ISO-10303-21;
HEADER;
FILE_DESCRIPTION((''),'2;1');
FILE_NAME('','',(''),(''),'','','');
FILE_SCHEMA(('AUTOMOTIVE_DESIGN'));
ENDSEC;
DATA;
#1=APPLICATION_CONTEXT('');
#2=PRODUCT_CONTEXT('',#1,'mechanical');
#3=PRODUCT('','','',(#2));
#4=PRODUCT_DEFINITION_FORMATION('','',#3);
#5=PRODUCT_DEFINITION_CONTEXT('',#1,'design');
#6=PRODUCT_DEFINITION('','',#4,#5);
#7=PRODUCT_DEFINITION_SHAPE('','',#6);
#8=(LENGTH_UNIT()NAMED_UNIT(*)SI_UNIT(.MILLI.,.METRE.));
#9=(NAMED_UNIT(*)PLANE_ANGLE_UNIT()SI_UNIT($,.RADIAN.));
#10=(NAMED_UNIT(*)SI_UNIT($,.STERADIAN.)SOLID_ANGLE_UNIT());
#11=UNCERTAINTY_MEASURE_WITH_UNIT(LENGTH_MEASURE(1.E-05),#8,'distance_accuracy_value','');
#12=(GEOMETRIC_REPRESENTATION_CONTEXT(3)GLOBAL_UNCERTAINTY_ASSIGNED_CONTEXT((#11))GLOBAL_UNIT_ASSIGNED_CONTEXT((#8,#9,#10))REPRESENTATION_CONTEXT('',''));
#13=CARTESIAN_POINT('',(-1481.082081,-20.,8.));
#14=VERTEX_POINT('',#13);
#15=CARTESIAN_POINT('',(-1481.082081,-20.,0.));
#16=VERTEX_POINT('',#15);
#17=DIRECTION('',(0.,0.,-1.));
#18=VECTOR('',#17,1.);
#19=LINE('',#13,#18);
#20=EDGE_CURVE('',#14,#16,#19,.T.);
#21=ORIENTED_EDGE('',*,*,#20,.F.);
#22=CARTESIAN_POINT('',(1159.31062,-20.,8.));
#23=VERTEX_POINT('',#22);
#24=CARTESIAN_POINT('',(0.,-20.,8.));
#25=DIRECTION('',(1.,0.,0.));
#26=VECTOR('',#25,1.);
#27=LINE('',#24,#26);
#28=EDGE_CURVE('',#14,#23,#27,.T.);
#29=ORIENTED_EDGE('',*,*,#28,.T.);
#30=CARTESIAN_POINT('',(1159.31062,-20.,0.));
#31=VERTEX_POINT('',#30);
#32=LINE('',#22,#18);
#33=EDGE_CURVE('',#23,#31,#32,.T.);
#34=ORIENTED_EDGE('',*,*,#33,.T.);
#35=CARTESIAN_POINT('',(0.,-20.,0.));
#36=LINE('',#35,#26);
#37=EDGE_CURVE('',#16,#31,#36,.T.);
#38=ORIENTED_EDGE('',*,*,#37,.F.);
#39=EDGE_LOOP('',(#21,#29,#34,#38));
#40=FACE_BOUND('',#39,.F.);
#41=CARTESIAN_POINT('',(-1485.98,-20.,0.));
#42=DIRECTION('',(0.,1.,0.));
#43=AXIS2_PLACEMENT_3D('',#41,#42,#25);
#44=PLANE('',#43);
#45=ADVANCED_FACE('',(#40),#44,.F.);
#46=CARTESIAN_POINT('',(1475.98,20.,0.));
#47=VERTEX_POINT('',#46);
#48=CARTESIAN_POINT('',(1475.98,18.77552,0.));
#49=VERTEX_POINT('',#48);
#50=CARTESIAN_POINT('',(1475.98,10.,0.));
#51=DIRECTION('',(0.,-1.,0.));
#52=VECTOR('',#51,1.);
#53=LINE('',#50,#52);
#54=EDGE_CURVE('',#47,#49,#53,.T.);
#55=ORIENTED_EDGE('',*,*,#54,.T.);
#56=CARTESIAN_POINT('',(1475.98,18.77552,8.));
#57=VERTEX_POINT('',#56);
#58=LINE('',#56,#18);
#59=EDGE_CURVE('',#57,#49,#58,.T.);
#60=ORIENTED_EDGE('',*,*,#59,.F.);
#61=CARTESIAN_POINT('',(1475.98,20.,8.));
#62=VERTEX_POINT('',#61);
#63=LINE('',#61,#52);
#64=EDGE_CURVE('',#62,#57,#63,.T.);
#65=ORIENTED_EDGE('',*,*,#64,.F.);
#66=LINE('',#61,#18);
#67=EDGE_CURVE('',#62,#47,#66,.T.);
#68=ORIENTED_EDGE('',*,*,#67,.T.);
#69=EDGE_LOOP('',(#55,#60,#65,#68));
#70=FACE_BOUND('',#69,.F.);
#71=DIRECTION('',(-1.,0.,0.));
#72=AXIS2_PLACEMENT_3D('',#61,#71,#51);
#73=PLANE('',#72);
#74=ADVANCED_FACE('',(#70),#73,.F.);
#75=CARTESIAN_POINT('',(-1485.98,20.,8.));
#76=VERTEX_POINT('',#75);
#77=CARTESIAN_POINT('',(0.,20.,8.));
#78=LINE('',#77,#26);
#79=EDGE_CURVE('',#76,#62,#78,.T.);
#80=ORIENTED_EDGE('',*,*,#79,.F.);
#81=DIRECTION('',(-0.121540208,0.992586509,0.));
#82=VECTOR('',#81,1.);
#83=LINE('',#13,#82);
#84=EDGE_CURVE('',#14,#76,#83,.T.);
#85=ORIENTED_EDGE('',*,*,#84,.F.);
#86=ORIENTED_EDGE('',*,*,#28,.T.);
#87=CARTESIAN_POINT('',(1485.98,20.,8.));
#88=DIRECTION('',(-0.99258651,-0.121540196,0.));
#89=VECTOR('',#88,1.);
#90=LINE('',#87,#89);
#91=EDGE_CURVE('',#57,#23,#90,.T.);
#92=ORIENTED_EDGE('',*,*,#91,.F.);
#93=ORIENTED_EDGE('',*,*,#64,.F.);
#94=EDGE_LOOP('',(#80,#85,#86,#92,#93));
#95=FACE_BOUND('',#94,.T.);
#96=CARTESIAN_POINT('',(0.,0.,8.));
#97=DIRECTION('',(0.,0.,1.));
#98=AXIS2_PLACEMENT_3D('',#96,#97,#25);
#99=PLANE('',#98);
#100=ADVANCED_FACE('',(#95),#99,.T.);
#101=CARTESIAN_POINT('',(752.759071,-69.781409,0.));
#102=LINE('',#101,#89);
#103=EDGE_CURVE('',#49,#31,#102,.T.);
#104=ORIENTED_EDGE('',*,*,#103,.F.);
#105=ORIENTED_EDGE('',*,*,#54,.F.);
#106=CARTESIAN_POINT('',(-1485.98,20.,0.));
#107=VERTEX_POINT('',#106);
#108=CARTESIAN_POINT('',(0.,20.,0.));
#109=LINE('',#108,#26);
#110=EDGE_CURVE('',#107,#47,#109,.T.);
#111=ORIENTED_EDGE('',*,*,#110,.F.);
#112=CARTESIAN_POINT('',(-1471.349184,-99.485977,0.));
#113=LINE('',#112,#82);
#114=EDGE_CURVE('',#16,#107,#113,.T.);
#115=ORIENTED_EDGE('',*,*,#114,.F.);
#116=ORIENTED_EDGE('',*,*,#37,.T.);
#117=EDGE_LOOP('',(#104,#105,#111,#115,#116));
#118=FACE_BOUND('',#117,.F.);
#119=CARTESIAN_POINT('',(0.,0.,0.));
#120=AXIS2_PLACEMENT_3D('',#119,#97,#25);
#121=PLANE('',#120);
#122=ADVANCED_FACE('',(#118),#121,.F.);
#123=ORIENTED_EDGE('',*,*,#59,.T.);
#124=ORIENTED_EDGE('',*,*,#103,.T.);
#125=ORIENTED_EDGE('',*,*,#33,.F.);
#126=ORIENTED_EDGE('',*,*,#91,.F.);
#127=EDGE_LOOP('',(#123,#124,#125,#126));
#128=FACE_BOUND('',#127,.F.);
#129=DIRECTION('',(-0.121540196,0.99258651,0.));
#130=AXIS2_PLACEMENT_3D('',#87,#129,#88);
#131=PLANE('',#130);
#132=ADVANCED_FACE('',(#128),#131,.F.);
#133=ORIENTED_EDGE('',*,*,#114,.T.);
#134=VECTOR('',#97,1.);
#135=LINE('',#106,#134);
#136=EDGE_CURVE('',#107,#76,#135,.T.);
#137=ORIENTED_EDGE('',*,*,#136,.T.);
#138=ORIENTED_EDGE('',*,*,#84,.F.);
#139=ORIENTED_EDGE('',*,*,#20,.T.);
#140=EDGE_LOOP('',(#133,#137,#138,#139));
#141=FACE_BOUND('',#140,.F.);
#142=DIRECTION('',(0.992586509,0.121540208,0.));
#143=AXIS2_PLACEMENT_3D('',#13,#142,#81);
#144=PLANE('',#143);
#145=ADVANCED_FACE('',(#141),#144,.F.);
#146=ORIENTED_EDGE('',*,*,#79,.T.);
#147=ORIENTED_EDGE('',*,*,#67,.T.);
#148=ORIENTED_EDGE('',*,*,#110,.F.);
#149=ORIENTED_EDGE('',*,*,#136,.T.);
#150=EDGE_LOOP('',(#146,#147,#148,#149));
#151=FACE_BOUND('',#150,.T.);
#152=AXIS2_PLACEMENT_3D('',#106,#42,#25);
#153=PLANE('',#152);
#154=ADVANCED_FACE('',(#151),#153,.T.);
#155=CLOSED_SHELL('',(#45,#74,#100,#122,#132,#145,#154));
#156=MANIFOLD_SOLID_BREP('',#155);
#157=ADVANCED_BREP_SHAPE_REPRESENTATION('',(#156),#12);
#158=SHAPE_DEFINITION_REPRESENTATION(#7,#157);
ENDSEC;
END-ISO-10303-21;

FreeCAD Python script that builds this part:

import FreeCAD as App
import Part
import Sketcher
from FreeCAD import Vector
Q = App.Units.Quantity

doc = App.newDocument("Part")
body = doc.addObject("PartDesign::Body", "Body")

sketch1 = body.newObject("Sketcher::SketchObject", "Sketch")
sketch1.AttachmentSupport = (doc.getObject("XY_Plane"), [""])
sketch1.MapMode = "FlatFace"
sketch1.addGeometry(Part.LineSegment(Vector(-1486, 20, 0), Vector(-1486, -20, 0)), False)
sketch1.addGeometry(Part.LineSegment(Vector(-1486, -20, 0), Vector(1486, -20, 0)), False)
sketch1.addGeometry(Part.LineSegment(Vector(1486, -20, 0), Vector(1486, 20, 0)), False)
sketch1.addGeometry(Part.LineSegment(Vector(1486, 20, 0), Vector(-1486, 20, 0)), False)
sketch1.addConstraint(Sketcher.Constraint("Coincident", 0, 2, 1, 1))
sketch1.addConstraint(Sketcher.Constraint("Coincident", 1, 2, 2, 1))
sketch1.addConstraint(Sketcher.Constraint("Coincident", 2, 2, 3, 1))
sketch1.addConstraint(Sketcher.Constraint("Coincident", 3, 2, 0, 1))
sketch1.addConstraint(Sketcher.Constraint("Vertical", 0))
sketch1.addConstraint(Sketcher.Constraint("Horizontal", 1))
sketch1.addConstraint(Sketcher.Constraint("Vertical", 2))
sketch1.addConstraint(Sketcher.Constraint("Horizontal", 3))
sketch1.addConstraint(Sketcher.Constraint("Symmetric", 0, 2, 2, 2, -1, 1))
sketch1.addConstraint(Sketcher.Constraint("DistanceY", 0, 2, 0, 1, Q("40 mm")))
sketch1.addConstraint(Sketcher.Constraint("DistanceX", 1, 1, 1, 2, Q("2971.96 mm")))
pad1 = body.newObject("PartDesign::Pad", "Pad")
pad1.Profile = sketch1
pad1.Length = 8

sketch2 = body.newObject("Sketcher::SketchObject", "Sketch001")
sketch2.AttachmentSupport = (doc.getObject("XY_Plane"), [""])
sketch2.MapMode = "FlatFace"
sketch2.AttachmentOffset = App.Placement(Vector(0, 0, 8), App.Rotation())
sketch2.addGeometry(Part.LineSegment(Vector(1486, -20, 0), Vector(1486, 20, 0)), False)
sketch2.addGeometry(Part.LineSegment(Vector(1486, 20, 0), Vector(1159, -20, 0)), False)
sketch2.addGeometry(Part.LineSegment(Vector(1159, -20, 0), Vector(1486, -20, 0)), False)
sketch2.addConstraint(Sketcher.Constraint("Coincident", 0, 2, 1, 1))
sketch2.addConstraint(Sketcher.Constraint("Coincident", 1, 2, 2, 1))
sketch2.addConstraint(Sketcher.Constraint("Coincident", 2, 2, 0, 1))
sketch2.addConstraint(Sketcher.Constraint("Vertical", 0))
sketch2.addConstraint(Sketcher.Constraint("Horizontal", 2))
sketch2.addConstraint(Sketcher.Constraint("DistanceY", 0, 1, 0, 2, Q("40 mm")))
sketch2.addConstraint(Sketcher.Constraint("DistanceY", -1, 1, 0, 2, Q("20 mm")))
sketch2.addConstraint(Sketcher.Constraint("DistanceX", -1, 1, 0, 2, Q("1485.98 mm")))
sketch2.addConstraint(Sketcher.Constraint("DistanceX", 2, 1, 2, 2, Q("326.66938 mm")))
pocket1 = body.newObject("PartDesign::Pocket", "Pocket")
pocket1.Profile = sketch2
pocket1.Length = 100

sketch3 = body.newObject("Sketcher::SketchObject", "Sketch002")
sketch3.AttachmentSupport = (doc.getObject("XY_Plane"), [""])
sketch3.MapMode = "FlatFace"
sketch3.AttachmentOffset = App.Placement(Vector(0, 0, 8), App.Rotation())
sketch3.addGeometry(Part.LineSegment(Vector(1476, 18.8, 0), Vector(1486, 20, 0)), False)
sketch3.addGeometry(Part.LineSegment(Vector(1486, 20, 0), Vector(1476, 20, 0)), False)
sketch3.addGeometry(Part.LineSegment(Vector(1476, 20, 0), Vector(1476, 18.8, 0)), False)
sketch3.addConstraint(Sketcher.Constraint("Coincident", 0, 2, 1, 1))
sketch3.addConstraint(Sketcher.Constraint("Coincident", 1, 2, 2, 1))
sketch3.addConstraint(Sketcher.Constraint("Coincident", 2, 2, 0, 1))
sketch3.addConstraint(Sketcher.Constraint("Horizontal", 1))
sketch3.addConstraint(Sketcher.Constraint("Vertical", 2))
sketch3.addConstraint(Sketcher.Constraint("DistanceX", 1, 2, 1, 1, Q("10 mm")))
sketch3.addConstraint(Sketcher.Constraint("DistanceY", -1, 1, 0, 2, Q("20 mm")))
sketch3.addConstraint(Sketcher.Constraint("DistanceX", -1, 1, 0, 2, Q("1485.98 mm")))
sketch3.addConstraint(Sketcher.Constraint("DistanceY", 2, 2, 2, 1, Q("1.22448 mm")))
pocket2 = body.newObject("PartDesign::Pocket", "Pocket001")
pocket2.Profile = sketch3
pocket2.Length = 25

sketch4 = body.newObject("Sketcher::SketchObject", "Sketch003")
sketch4.AttachmentSupport = (doc.getObject("XY_Plane"), [""])
sketch4.MapMode = "FlatFace"
sketch4.AttachmentOffset = App.Placement(Vector(0, 0, 8), App.Rotation())
sketch4.addGeometry(Part.LineSegment(Vector(-1481.1, -20, 0), Vector(-1486, 20, 0)), False)
sketch4.addGeometry(Part.LineSegment(Vector(-1486, 20, 0), Vector(-1486, -20, 0)), False)
sketch4.addGeometry(Part.LineSegment(Vector(-1486, -20, 0), Vector(-1481.1, -20, 0)), False)
sketch4.addConstraint(Sketcher.Constraint("Coincident", 0, 2, 1, 1))
sketch4.addConstraint(Sketcher.Constraint("Coincident", 1, 2, 2, 1))
sketch4.addConstraint(Sketcher.Constraint("Coincident", 2, 2, 0, 1))
sketch4.addConstraint(Sketcher.Constraint("Vertical", 1))
sketch4.addConstraint(Sketcher.Constraint("Horizontal", 2))
sketch4.addConstraint(Sketcher.Constraint("DistanceY", 1, 2, 1, 1, Q("40 mm")))
sketch4.addConstraint(Sketcher.Constraint("DistanceY", -1, 1, 0, 2, Q("20 mm")))
sketch4.addConstraint(Sketcher.Constraint("DistanceX", 0, 2, -1, 1, Q("1485.98 mm")))
sketch4.addConstraint(Sketcher.Constraint("DistanceX", 2, 1, 2, 2, Q("4.897919 mm")))
pocket3 = body.newObject("PartDesign::Pocket", "Pocket002")
pocket3.Profile = sketch4
pocket3.Length = 25

doc.recompute()
